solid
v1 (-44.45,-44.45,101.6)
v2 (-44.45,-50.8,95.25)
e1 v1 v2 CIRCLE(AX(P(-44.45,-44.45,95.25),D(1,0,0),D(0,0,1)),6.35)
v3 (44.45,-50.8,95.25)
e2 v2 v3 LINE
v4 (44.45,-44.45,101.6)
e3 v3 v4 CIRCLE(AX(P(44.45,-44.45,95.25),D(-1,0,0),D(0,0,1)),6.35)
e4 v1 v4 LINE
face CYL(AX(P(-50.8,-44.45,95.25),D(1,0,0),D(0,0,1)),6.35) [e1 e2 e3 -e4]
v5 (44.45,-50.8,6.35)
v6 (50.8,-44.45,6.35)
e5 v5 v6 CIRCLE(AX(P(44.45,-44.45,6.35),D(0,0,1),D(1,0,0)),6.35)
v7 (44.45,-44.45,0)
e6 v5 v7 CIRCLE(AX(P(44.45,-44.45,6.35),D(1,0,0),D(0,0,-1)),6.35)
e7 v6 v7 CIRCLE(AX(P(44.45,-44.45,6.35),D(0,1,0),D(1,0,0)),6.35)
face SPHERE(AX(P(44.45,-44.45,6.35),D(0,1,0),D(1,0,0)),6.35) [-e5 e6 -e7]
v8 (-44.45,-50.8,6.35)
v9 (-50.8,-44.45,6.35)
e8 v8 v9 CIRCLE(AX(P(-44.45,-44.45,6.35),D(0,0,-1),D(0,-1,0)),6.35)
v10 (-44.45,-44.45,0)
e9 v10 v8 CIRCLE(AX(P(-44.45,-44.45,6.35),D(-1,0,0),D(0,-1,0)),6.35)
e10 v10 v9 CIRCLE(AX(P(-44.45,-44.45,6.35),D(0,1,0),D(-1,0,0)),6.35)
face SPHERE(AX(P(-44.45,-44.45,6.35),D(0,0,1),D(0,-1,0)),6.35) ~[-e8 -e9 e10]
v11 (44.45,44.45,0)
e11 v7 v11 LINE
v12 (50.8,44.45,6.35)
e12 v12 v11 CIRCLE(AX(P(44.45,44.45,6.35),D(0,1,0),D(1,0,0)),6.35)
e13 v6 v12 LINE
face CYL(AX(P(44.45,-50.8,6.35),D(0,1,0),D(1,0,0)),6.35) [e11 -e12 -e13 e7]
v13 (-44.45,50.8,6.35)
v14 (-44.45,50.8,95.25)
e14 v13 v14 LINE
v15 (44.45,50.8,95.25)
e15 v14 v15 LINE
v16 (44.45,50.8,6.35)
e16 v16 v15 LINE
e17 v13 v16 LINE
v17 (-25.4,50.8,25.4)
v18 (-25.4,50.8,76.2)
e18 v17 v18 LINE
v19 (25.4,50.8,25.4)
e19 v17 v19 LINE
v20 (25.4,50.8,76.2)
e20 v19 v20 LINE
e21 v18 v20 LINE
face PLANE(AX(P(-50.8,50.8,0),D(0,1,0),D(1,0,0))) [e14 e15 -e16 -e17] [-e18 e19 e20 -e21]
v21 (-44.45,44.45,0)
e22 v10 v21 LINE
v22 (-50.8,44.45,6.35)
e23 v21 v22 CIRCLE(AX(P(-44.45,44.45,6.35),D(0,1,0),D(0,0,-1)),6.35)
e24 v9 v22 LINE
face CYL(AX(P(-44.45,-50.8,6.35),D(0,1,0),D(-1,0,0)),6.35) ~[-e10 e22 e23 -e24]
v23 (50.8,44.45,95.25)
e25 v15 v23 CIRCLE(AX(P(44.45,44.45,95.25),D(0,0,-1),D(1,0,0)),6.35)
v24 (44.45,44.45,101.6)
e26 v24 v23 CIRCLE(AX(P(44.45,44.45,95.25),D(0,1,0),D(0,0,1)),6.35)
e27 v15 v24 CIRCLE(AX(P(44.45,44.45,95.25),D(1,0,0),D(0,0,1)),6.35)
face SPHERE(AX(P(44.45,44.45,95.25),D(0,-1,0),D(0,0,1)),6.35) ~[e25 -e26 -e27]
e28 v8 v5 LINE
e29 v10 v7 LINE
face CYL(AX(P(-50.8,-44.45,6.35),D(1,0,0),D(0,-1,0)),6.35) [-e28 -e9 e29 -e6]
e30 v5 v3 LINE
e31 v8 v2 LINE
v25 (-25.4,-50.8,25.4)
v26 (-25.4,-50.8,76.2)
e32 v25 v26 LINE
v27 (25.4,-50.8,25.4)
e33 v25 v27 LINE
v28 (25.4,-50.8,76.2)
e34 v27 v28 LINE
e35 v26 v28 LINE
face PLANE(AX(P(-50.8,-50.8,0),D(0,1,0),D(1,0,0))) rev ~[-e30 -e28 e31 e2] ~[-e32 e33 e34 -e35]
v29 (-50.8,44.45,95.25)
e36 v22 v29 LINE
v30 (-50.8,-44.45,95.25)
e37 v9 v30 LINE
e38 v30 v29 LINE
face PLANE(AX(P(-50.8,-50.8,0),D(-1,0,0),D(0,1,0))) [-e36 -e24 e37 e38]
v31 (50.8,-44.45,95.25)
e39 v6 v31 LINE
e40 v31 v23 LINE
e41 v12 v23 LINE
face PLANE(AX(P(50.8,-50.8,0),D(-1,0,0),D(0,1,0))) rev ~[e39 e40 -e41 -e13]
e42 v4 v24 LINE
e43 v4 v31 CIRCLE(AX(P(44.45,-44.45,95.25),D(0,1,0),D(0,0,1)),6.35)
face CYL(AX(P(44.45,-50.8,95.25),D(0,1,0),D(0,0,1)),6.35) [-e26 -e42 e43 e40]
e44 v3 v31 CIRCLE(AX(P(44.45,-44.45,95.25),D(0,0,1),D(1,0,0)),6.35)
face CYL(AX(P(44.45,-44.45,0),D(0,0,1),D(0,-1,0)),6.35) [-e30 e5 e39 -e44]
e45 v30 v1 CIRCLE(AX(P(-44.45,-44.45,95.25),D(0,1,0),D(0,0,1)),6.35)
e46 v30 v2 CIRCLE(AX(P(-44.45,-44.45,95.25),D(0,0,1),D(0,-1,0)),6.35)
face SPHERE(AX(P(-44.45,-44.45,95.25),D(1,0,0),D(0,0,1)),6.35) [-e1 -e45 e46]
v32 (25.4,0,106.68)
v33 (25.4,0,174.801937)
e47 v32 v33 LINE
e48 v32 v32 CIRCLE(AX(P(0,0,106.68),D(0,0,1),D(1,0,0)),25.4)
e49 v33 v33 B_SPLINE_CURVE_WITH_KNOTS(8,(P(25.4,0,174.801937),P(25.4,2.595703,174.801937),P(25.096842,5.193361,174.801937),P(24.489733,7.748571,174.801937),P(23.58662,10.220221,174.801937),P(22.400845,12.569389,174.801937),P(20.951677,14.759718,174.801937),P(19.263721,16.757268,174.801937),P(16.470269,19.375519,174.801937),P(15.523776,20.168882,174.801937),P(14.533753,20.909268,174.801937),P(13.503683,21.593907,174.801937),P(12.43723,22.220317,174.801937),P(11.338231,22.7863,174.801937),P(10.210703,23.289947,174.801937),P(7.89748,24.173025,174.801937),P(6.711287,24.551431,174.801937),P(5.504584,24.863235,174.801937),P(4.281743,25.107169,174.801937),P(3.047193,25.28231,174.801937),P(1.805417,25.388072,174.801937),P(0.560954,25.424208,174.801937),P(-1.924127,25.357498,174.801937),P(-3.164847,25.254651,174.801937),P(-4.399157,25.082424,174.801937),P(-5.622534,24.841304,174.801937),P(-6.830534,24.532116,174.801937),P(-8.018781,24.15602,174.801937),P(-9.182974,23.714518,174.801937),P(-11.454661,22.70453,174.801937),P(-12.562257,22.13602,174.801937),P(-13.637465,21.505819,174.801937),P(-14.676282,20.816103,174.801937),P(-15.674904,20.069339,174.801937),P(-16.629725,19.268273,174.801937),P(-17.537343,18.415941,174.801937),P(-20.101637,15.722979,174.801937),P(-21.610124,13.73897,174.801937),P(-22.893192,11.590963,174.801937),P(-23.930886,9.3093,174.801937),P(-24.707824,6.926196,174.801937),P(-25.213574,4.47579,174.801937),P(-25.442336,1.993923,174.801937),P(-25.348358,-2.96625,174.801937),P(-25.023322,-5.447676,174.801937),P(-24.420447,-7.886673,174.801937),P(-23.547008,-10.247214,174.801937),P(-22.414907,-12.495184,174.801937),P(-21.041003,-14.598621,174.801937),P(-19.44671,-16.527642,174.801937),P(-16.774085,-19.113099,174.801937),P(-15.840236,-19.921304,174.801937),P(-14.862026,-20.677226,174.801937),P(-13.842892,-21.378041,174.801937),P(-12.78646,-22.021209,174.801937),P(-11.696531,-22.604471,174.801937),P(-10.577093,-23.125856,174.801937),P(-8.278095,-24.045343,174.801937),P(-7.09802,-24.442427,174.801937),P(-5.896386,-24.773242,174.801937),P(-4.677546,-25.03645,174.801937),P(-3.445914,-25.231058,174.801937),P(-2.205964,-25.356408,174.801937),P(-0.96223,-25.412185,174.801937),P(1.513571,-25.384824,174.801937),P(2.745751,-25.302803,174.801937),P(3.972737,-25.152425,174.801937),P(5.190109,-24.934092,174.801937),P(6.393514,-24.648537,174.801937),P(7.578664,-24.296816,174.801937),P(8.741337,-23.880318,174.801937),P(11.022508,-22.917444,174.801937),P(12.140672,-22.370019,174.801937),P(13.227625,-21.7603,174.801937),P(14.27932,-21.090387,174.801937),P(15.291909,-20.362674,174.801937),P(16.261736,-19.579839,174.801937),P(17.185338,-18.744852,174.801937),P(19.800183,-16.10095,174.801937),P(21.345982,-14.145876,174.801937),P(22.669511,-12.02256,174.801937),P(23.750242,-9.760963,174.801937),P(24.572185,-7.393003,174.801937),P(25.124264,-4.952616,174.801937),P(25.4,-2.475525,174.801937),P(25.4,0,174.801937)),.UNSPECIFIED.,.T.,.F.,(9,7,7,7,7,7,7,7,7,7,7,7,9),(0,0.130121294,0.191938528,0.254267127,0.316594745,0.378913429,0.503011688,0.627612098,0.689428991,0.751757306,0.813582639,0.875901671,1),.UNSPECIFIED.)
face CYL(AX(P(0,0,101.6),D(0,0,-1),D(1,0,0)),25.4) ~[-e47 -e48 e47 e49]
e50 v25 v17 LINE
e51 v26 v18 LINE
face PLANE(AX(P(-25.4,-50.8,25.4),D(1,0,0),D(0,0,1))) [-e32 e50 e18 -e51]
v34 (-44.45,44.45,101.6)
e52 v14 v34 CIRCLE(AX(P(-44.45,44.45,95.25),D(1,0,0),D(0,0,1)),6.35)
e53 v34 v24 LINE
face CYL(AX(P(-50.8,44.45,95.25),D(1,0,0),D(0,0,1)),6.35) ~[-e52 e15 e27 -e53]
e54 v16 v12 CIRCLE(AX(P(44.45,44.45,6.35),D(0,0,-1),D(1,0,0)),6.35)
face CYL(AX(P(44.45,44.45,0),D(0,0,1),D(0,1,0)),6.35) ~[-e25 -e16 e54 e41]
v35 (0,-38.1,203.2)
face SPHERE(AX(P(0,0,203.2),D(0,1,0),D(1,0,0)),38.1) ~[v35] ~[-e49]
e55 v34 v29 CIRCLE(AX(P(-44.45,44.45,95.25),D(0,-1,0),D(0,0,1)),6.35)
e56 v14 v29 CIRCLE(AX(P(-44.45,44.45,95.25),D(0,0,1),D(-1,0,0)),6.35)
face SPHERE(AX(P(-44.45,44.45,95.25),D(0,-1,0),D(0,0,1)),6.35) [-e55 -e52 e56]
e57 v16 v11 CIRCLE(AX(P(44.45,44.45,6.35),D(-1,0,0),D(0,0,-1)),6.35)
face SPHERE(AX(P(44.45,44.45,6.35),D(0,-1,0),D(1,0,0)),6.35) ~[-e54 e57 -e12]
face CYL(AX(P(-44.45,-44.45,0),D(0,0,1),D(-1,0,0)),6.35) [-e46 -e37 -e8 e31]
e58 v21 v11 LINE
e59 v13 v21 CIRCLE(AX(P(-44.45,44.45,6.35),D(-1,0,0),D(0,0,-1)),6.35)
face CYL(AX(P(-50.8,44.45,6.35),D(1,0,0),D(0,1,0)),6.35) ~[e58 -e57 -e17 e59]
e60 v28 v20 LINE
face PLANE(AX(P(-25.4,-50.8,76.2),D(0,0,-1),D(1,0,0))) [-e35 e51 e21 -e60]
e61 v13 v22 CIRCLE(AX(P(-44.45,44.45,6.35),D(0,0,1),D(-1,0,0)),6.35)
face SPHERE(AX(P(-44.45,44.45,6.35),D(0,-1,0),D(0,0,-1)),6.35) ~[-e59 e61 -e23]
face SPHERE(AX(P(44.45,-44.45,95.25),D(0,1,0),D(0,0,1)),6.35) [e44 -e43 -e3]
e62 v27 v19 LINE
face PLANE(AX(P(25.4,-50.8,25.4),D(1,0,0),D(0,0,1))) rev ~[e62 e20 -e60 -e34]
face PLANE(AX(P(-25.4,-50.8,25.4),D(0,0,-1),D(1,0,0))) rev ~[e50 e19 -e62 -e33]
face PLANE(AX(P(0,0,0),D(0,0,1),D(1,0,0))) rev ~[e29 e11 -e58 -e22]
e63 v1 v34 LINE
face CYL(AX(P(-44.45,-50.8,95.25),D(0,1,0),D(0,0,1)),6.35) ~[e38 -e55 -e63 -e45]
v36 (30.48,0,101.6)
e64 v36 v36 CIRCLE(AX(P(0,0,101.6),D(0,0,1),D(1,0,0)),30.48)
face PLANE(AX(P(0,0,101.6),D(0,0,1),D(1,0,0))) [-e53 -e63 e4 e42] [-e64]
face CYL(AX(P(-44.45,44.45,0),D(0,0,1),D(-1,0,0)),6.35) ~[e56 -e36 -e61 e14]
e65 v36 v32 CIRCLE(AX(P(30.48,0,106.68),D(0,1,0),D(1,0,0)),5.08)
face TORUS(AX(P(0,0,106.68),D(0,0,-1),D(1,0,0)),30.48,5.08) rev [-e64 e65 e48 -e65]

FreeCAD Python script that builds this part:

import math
import FreeCAD as App
import Part
import Sketcher
Q = App.Units.Quantity


def edges_at(feature, points):
    """Names of the edges that pass closest to the given points."""
    edges = feature.Shape.Edges
    near = lambda p: min(range(len(edges)), key=lambda i: edges[i].distToShape(Part.Vertex(*p))[0])
    return sorted({f"Edge{near(p) + 1}" for p in points})


def add_polygon(sketch, points):
    """Adds a closed chain of lines whose ends are joined by coincident constraints."""
    first, n = sketch.GeometryCount, len(points)
    for a, b in zip(points, points[1:] + points[:1]):
        sketch.addGeometry(Part.LineSegment(App.Vector(*a, 0), App.Vector(*b, 0)), False)
    for i in range(n):
        sketch.addConstraint(Sketcher.Constraint("Coincident", first + i, 2, first + (i + 1) % n, 1))

doc = App.newDocument("Part")
body = doc.addObject("PartDesign::Body", "Body")

sketch1 = body.newObject("Sketcher::SketchObject", "Sketch")
sketch1.AttachmentSupport = (doc.getObject("XY_Plane"), [""])
sketch1.MapMode = "FlatFace"
add_polygon(sketch1, [(-51, 51), (-51, -51), (51, -51), (51, 51)])
sketch1.addConstraint([
    Sketcher.Constraint("Vertical", 0),
    Sketcher.Constraint("Horizontal", 1),
    Sketcher.Constraint("Vertical", 2),
    Sketcher.Constraint("Horizontal", 3),
    Sketcher.Constraint("Symmetric", 0, 2, 2, 2, -1, 1),
    Sketcher.Constraint("Equal", 3, 0),
    Sketcher.Constraint("DistanceX", 1, 1, 1, 2, Q("4 in")),
])
pad1 = body.newObject("PartDesign::Pad", "Pad")
pad1.Profile = sketch1
pad1.Length = Q("4 in")

sketch2 = body.newObject("Sketcher::SketchObject", "Sketch001")
sketch2.AttachmentSupport = (doc.getObject("XY_Plane"), [""])
sketch2.MapMode = "FlatFace"
sketch2.AttachmentOffset = App.Placement(App.Vector(0, 0, 4 * 25.4), App.Rotation())
sketch2.addGeometry(Part.Circle(App.Vector(0, 0, 0), App.Vector(0, 0, 1), 25), False)
sketch2.addConstraint([
    Sketcher.Constraint("Coincident", 0, 3, -1, 1),
    Sketcher.Constraint("Diameter", 0, Q("2 in")),
])
pad2 = body.newObject("PartDesign::Pad", "Pad001")
pad2.Profile = sketch2
pad2.Length = Q("4 in")

sketch3 = body.newObject("Sketcher::SketchObject", "Sketch002")
sketch3.AttachmentSupport = (doc.getObject("XY_Plane"), [""])
sketch3.MapMode = "FlatFace"
sketch3.AttachmentOffset = App.Placement(App.Vector(0, 0, 8 * 25.4), App.Rotation())
sketch3.addGeometry([
    Part.ArcOfCircle(Part.Circle(App.Vector(0, 0, 0), App.Vector(0, 0, 1), 38), math.radians(-90), math.radians(90)),
    Part.LineSegment(App.Vector(0, 38, 0), App.Vector(0, -38, 0)),
], False)
sketch3.addConstraint([
    Sketcher.Constraint("Coincident", 0, 1, 1, 2),
    Sketcher.Constraint("Coincident", 1, 1, 0, 2),
    Sketcher.Constraint("Vertical", 1),
    Sketcher.Constraint("Coincident", 0, 3, -1, 1),
    Sketcher.Constraint("PointOnObject", 0, 1, -2),
    Sketcher.Constraint("Radius", 0, Q("1.5 in")),
])
revolution = body.newObject("PartDesign::Revolution", "Revolution")
revolution.Profile = sketch3
revolution.ReferenceAxis = (sketch3, ["V_Axis"])
revolution.Angle = 360

sketch4 = body.newObject("Sketcher::SketchObject", "Sketch003")
sketch4.AttachmentSupport = (doc.getObject("XZ_Plane"), [""])
sketch4.MapMode = "FlatFace"
sketch4.AttachmentOffset = App.Placement(App.Vector(0, 0, 2 * 25.4), App.Rotation())
add_polygon(sketch4, [(-25, 76), (-25, 25), (25, 25), (25, 76)])
sketch4.addConstraint([
    Sketcher.Constraint("Vertical", 0),
    Sketcher.Constraint("Horizontal", 1),
    Sketcher.Constraint("Vertical", 2),
    Sketcher.Constraint("Horizontal", 3),
    Sketcher.Constraint("Equal", 3, 0),
    Sketcher.Constraint("DistanceX", 1, 1, 1, 2, Q("2 in")),
    Sketcher.Constraint("DistanceX", 0, 2, -1, 1, Q("1 in")),
    Sketcher.Constraint("DistanceY", -1, 1, 0, 2, Q("1 in")),
])
pocket1 = body.newObject("PartDesign::Pocket", "Pocket")
pocket1.Profile = sketch4
pocket1.Length = Q("4 in")
doc.recompute()

fillet = body.newObject("PartDesign::Fillet", "Fillet")
fillet.Base = (pocket1, edges_at(pocket1, [
    (50.8, 0, 101.6),
    (0, -50.8, 101.6),
    (-50.8, 0, 101.6),
    (0, 50.8, 101.6),
    (50.8, 0, 0),
    (50.8, 50.8, 50.8),
    (50.8, -50.8, 50.8),
    (-50.8, -50.8, 50.8),
    (0, -50.8, 0),
    (-50.8, 0, 0),
    (0, 50.8, 0),
    (-50.8, 50.8, 50.8),
]))
fillet.Radius = Q("0.25 in")
doc.recompute()

fillet2 = body.newObject("PartDesign::Fillet", "Fillet001")
fillet2.Base = (fillet, edges_at(fillet, [(-25.4, 0, 101.6)]))
fillet2.Radius = Q("0.2 in")

doc.recompute()
